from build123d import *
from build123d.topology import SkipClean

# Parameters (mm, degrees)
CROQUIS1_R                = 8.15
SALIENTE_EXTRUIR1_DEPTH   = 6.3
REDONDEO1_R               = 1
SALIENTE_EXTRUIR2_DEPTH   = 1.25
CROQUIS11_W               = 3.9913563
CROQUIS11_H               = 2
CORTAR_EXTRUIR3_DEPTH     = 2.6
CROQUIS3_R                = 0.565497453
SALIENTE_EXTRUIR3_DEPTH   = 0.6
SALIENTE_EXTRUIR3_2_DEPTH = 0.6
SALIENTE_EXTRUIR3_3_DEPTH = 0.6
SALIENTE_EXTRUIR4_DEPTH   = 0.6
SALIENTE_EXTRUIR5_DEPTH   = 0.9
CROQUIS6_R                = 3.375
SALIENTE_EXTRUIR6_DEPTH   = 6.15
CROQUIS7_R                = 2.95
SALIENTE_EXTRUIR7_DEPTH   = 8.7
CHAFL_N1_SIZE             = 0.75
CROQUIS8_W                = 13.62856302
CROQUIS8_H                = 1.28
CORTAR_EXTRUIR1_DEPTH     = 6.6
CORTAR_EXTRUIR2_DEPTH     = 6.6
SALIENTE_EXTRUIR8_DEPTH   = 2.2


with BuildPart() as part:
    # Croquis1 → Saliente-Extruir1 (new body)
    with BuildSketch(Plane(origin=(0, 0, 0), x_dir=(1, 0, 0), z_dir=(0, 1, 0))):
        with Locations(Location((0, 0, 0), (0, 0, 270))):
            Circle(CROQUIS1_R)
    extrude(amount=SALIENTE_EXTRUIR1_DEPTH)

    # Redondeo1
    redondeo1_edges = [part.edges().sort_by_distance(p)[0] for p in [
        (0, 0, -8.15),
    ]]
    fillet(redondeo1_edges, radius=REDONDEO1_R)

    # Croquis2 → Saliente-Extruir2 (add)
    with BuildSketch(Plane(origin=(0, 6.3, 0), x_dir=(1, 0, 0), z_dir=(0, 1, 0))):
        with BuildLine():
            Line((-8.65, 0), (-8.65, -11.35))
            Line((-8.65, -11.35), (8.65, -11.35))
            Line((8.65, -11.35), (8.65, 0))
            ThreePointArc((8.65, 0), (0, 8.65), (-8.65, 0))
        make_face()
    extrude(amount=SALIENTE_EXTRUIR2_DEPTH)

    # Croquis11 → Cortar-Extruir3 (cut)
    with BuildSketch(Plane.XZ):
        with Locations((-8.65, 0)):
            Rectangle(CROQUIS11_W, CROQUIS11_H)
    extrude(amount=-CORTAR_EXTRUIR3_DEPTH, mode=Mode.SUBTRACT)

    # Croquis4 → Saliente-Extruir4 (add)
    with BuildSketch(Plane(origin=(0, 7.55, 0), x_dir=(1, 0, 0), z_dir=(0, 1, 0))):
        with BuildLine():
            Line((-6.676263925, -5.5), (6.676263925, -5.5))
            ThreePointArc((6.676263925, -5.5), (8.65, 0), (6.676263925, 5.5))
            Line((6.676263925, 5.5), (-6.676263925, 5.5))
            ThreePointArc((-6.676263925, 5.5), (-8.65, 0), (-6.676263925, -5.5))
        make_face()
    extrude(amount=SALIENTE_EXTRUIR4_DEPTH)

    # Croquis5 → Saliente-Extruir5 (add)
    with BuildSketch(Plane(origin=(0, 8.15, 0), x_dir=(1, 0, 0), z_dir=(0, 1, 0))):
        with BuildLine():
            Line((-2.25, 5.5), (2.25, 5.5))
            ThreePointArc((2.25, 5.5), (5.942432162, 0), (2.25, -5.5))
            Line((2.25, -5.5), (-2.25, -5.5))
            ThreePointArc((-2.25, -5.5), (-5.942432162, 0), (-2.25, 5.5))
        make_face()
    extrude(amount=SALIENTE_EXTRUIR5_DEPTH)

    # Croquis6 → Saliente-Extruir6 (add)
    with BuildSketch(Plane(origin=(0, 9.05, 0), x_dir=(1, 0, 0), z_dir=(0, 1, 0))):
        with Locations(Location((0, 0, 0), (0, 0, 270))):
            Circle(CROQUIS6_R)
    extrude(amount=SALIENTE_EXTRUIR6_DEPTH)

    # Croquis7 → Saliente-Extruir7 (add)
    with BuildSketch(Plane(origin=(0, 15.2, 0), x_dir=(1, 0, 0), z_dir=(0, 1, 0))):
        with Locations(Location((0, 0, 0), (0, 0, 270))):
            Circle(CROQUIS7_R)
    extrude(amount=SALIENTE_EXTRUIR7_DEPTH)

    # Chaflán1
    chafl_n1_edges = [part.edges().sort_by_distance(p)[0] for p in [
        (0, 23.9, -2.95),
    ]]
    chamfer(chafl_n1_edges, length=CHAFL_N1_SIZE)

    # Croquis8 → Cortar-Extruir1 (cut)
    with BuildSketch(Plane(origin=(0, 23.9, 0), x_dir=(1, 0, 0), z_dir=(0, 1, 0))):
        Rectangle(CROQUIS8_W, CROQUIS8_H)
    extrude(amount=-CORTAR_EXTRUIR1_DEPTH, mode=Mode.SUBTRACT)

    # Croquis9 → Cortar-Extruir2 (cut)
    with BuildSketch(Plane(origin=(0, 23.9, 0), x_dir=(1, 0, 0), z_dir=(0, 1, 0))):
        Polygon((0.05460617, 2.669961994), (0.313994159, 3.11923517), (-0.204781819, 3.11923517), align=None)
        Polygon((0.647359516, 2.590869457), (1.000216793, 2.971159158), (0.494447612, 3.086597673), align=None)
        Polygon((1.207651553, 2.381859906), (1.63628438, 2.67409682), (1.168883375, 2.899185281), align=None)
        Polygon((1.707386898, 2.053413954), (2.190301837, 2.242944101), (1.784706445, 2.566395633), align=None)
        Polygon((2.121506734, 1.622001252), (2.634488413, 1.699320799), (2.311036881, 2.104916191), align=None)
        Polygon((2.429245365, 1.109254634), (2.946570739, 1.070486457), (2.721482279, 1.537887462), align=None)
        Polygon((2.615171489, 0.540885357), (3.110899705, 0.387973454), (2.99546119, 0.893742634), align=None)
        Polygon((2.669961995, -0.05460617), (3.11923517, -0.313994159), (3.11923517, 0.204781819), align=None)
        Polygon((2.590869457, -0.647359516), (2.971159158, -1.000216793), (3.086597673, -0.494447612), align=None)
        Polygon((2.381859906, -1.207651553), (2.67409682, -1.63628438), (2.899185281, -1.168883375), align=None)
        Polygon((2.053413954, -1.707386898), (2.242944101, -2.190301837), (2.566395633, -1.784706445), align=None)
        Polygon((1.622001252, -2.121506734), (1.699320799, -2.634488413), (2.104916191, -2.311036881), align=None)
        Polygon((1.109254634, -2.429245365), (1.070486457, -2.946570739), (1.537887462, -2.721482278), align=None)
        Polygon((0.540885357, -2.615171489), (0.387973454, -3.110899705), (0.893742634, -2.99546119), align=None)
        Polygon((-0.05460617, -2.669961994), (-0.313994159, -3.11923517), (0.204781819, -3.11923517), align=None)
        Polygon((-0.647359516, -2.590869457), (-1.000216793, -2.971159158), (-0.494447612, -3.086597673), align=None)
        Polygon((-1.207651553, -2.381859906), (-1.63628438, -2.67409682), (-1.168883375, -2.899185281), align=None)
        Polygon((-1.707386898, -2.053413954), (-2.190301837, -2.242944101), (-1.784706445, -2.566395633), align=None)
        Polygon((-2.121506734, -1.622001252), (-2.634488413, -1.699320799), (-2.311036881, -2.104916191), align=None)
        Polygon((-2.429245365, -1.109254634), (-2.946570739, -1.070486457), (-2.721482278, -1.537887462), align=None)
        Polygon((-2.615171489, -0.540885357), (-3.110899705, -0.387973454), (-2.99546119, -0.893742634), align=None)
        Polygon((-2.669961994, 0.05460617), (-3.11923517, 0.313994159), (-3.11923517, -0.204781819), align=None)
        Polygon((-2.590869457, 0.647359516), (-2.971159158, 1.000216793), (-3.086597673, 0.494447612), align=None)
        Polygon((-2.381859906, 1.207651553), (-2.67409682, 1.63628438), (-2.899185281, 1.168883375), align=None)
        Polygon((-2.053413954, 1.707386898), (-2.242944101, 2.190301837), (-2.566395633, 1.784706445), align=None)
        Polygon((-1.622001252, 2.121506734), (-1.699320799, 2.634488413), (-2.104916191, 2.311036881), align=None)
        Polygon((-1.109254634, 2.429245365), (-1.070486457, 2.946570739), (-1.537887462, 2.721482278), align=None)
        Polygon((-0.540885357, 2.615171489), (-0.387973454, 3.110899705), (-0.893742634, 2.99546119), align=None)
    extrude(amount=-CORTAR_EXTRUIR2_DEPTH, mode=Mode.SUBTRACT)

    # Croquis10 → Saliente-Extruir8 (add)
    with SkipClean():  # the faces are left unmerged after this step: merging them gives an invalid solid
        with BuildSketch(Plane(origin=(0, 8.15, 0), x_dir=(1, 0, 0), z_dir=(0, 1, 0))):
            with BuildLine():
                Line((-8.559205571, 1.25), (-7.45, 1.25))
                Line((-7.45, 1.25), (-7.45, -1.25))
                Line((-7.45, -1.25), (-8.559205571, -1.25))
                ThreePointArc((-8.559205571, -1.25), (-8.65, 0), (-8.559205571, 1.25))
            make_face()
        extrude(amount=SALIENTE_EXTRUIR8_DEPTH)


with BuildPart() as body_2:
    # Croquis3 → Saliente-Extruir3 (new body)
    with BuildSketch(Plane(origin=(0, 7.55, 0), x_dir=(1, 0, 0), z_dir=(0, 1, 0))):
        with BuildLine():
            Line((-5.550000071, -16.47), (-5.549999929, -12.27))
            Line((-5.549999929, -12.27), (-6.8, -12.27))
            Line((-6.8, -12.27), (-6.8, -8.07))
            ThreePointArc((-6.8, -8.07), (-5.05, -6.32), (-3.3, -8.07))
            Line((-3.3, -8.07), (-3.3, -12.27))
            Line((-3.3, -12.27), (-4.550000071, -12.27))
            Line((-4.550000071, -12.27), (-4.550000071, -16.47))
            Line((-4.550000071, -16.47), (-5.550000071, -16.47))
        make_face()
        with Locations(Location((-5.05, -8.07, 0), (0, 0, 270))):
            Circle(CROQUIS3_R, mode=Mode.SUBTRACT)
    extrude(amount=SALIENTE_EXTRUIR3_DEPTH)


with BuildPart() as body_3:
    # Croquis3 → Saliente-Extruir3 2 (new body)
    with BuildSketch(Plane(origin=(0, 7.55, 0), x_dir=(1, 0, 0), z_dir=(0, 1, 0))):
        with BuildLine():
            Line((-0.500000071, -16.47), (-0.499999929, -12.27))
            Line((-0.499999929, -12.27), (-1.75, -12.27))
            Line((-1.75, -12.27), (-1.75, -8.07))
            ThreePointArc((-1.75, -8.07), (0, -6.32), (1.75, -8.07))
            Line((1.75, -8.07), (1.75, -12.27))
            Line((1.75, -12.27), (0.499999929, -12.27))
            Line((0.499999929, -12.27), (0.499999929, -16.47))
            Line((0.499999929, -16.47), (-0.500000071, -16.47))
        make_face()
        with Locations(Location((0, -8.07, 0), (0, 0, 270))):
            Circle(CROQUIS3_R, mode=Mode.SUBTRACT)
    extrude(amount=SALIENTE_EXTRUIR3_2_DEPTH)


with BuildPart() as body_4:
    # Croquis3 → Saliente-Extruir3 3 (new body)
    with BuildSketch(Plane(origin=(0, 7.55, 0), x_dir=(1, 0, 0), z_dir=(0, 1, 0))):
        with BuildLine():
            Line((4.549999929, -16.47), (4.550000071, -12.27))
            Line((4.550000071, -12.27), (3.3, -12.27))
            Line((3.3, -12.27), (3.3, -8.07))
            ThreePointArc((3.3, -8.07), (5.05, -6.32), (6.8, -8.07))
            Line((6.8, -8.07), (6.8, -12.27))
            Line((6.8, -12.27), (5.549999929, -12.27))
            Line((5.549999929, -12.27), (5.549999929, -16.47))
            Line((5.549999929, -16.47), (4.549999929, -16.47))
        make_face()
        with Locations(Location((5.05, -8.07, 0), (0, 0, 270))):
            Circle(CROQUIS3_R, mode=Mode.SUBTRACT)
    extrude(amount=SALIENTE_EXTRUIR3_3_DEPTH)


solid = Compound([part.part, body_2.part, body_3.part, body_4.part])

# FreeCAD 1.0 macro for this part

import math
import FreeCAD as App
import Part
import Sketcher

V = App.Vector
Q = App.Units.Quantity


def edges_at(feature, points):
    """Names of the edges that pass closest to the given points."""
    edges = feature.Shape.Edges
    near = lambda p: min(range(len(edges)), key=lambda i: edges[i].distToShape(Part.Vertex(*p))[0])
    return sorted({f"Edge{near(p) + 1}" for p in points})

doc = App.newDocument("Part")
body = doc.addObject("PartDesign::Body", "Body")

# Sketch on XZ plane
sketch1 = body.newObject("Sketcher::SketchObject", "Sketch")
sketch1.AttachmentSupport = (doc.getObject("XZ_Plane"), [""])
sketch1.MapMode = "FlatFace"
sketch1.addGeometry(Part.Circle(V(0, 0, 0), V(0, 0, 1), 8), False)
sketch1.addConstraint(Sketcher.Constraint("Coincident", 0, 3, -1, 1))
sketch1.addConstraint(Sketcher.Constraint("Diameter", 0, 16.3))
pad1 = body.newObject("PartDesign::Pad", "Pad")
pad1.Profile = sketch1
pad1.Length = 6.3
pad1.Reversed = True
doc.recompute()

fillet = body.newObject("PartDesign::Fillet", "Fillet")
fillet.Base = (pad1, edges_at(pad1, [(0, 0, -8.15)]))
fillet.Radius = 1

# Sketch on XZ plane
sketch2 = body.newObject("Sketcher::SketchObject", "Sketch001")
sketch2.AttachmentSupport = (doc.getObject("XZ_Plane"), [""])
sketch2.MapMode = "FlatFace"
sketch2.AttachmentOffset = App.Placement(V(0, 0, -6.3), App.Rotation())
sketch2.addGeometry(Part.LineSegment(V(-9, 0, 0), V(-9, 11, 0)), False)
sketch2.addGeometry(Part.LineSegment(V(-9, 11, 0), V(9, 11, 0)), False)
sketch2.addGeometry(Part.LineSegment(V(9, 11, 0), V(9, 0, 0)), False)
sketch2.addGeometry(Part.ArcOfCircle(Part.Circle(V(0, 0, 0), V(0, 0, 1), 9), math.radians(180), math.radians(360)), False)
sketch2.addConstraint(Sketcher.Constraint("Coincident", 0, 2, 1, 1))
sketch2.addConstraint(Sketcher.Constraint("Coincident", 1, 2, 2, 1))
sketch2.addConstraint(Sketcher.Constraint("Tangent", 2, 2, 3, 2))
sketch2.addConstraint(Sketcher.Constraint("Tangent", 3, 1, 0, 1))
sketch2.addConstraint(Sketcher.Constraint("Vertical", 0))
sketch2.addConstraint(Sketcher.Constraint("Horizontal", 1))
sketch2.addConstraint(Sketcher.Constraint("Vertical", 2))
sketch2.addConstraint(Sketcher.Constraint("Coincident", 3, 3, -1, 1))
sketch2.addConstraint(Sketcher.Constraint("Radius", 3, 8.65))
sketch2.addConstraint(Sketcher.Constraint("DistanceY", 0, 1, 0, 2, 11.35))
pad2 = body.newObject("PartDesign::Pad", "Pad001")
pad2.Profile = sketch2
pad2.Length = 1.25
pad2.Reversed = True

# Sketch on XZ plane
sketch3 = body.newObject("Sketcher::SketchObject", "Sketch002")
sketch3.AttachmentSupport = (doc.getObject("XZ_Plane"), [""])
sketch3.MapMode = "FlatFace"
sketch3.addGeometry(Part.LineSegment(V(-10.6, 1, 0), V(-10.6, -1, 0)), False)
sketch3.addGeometry(Part.LineSegment(V(-10.6, -1, 0), V(-6.7, -1, 0)), False)
sketch3.addGeometry(Part.LineSegment(V(-6.7, -1, 0), V(-6.7, 1, 0)), False)
sketch3.addGeometry(Part.LineSegment(V(-6.7, 1, 0), V(-10.6, 1, 0)), False)
sketch3.addConstraint(Sketcher.Constraint("Coincident", 0, 2, 1, 1))
sketch3.addConstraint(Sketcher.Constraint("Coincident", 1, 2, 2, 1))
sketch3.addConstraint(Sketcher.Constraint("Coincident", 2, 2, 3, 1))
sketch3.addConstraint(Sketcher.Constraint("Coincident", 3, 2, 0, 1))
sketch3.addConstraint(Sketcher.Constraint("Vertical", 0))
sketch3.addConstraint(Sketcher.Constraint("Horizontal", 1))
sketch3.addConstraint(Sketcher.Constraint("Vertical", 2))
sketch3.addConstraint(Sketcher.Constraint("Horizontal", 3))
sketch3.addConstraint(Sketcher.Constraint("DistanceY", 0, 2, 0, 1, 2.0))
sketch3.addConstraint(Sketcher.Constraint("DistanceY", 0, 2, -1, 1, 1.0))
sketch3.addConstraint(Sketcher.Constraint("DistanceX", 1, 1, 1, 2, 3.991356))
sketch3.addConstraint(Sketcher.Constraint("DistanceX", 0, 2, -1, 1, 10.645678))
pocket1 = body.newObject("PartDesign::Pocket", "Pocket")
pocket1.Profile = sketch3
pocket1.Length = 2.6

# Sketch on XZ plane
sketch4 = body.newObject("Sketcher::SketchObject", "Sketch003")
sketch4.AttachmentSupport = (doc.getObject("XZ_Plane"), [""])
sketch4.MapMode = "FlatFace"
sketch4.AttachmentOffset = App.Placement(V(0, 0, -7.55), App.Rotation())
sketch4.addGeometry(Part.LineSegment(V(-7, 6, 0), V(7, 6, 0)), False)
sketch4.addGeometry(Part.ArcOfCircle(Part.Circle(V(0, 0, 0), V(0, 0, 1), 9), math.radians(-39), math.radians(39)), False)
sketch4.addGeometry(Part.LineSegment(V(7, -6, 0), V(-7, -6, 0)), False)
sketch4.addGeometry(Part.ArcOfCircle(Part.Circle(V(0, 0, 0), V(0, 0, 1), 9), math.radians(141), math.radians(219)), False)
sketch4.addConstraint(Sketcher.Constraint("Coincident", 0, 2, 1, 2))
sketch4.addConstraint(Sketcher.Constraint("Coincident", 1, 1, 2, 1))
sketch4.addConstraint(Sketcher.Constraint("Coincident", 2, 2, 3, 2))
sketch4.addConstraint(Sketcher.Constraint("Coincident", 3, 1, 0, 1))
sketch4.addConstraint(Sketcher.Constraint("Horizontal", 0))
sketch4.addConstraint(Sketcher.Constraint("Horizontal", 2))
sketch4.addConstraint(Sketcher.Constraint("Coincident", 1, 3, -1, 1))
sketch4.addConstraint(Sketcher.Constraint("Coincident", 3, 3, -1, 1))
sketch4.addConstraint(Sketcher.Constraint("Equal", 1, 3))
sketch4.addConstraint(Sketcher.Constraint("Vertical", 0, 2, 1, 1))
sketch4.addConstraint(Sketcher.Constraint("Radius", 1, 8.65))
sketch4.addConstraint(Sketcher.Constraint("DistanceY", 1, 1, 0, 2, 11.0))
pad3 = body.newObject("PartDesign::Pad", "Pad002")
pad3.Profile = sketch4
pad3.Length = 0.6
pad3.Reversed = True

# Sketch on XZ plane
sketch5 = body.newObject("Sketcher::SketchObject", "Sketch004")
sketch5.AttachmentSupport = (doc.getObject("XZ_Plane"), [""])
sketch5.MapMode = "FlatFace"
sketch5.AttachmentOffset = App.Placement(V(0, 0, -8.15), App.Rotation())
sketch5.addGeometry(Part.LineSegment(V(2.2, -5.5, 0), V(-2.2, -5.5, 0)), False)
sketch5.addGeometry(Part.ArcOfCircle(Part.Circle(V(0, 0, 0), V(0, 0, 1), 5.9), math.radians(112), math.radians(248)), False)
sketch5.addGeometry(Part.LineSegment(V(-2.2, 5.5, 0), V(2.2, 5.5, 0)), False)
sketch5.addGeometry(Part.ArcOfCircle(Part.Circle(V(0, 0, 0), V(0, 0, 1), 5.9), math.radians(-68), math.radians(68)), False)
sketch5.addConstraint(Sketcher.Constraint("Coincident", 0, 2, 1, 2))
sketch5.addConstraint(Sketcher.Constraint("Coincident", 1, 1, 2, 1))
sketch5.addConstraint(Sketcher.Constraint("Coincident", 2, 2, 3, 2))
sketch5.addConstraint(Sketcher.Constraint("Coincident", 3, 1, 0, 1))
sketch5.addConstraint(Sketcher.Constraint("Horizontal", 0))
sketch5.addConstraint(Sketcher.Constraint("Horizontal", 2))
sketch5.addConstraint(Sketcher.Constraint("Coincident", 1, 3, -1, 1))
sketch5.addConstraint(Sketcher.Constraint("Coincident", 3, 3, -1, 1))
sketch5.addConstraint(Sketcher.Constraint("Equal", 1, 3))
sketch5.addConstraint(Sketcher.Constraint("Vertical", 0, 2, 1, 1))
sketch5.addConstraint(Sketcher.Constraint("DistanceX", 0, 2, 0, 1, 4.5))
sketch5.addConstraint(Sketcher.Constraint("DistanceY", 0, 2, 1, 1, 11.0))
pad4 = body.newObject("PartDesign::Pad", "Pad003")
pad4.Profile = sketch5
pad4.Length = 0.9
pad4.Reversed = True

# Sketch on XZ plane
sketch6 = body.newObject("Sketcher::SketchObject", "Sketch005")
sketch6.AttachmentSupport = (doc.getObject("XZ_Plane"), [""])
sketch6.MapMode = "FlatFace"
sketch6.AttachmentOffset = App.Placement(V(0, 0, -9.05), App.Rotation())
sketch6.addGeometry(Part.Circle(V(0, 0, 0), V(0, 0, 1), 3.4), False)
sketch6.addConstraint(Sketcher.Constraint("Coincident", 0, 3, -1, 1))
sketch6.addConstraint(Sketcher.Constraint("Diameter", 0, 6.75))
pad5 = body.newObject("PartDesign::Pad", "Pad004")
pad5.Profile = sketch6
pad5.Length = 6.15
pad5.Reversed = True

# Sketch on XZ plane
sketch7 = body.newObject("Sketcher::SketchObject", "Sketch006")
sketch7.AttachmentSupport = (doc.getObject("XZ_Plane"), [""])
sketch7.MapMode = "FlatFace"
sketch7.AttachmentOffset = App.Placement(V(0, 0, -15.2), App.Rotation())
sketch7.addGeometry(Part.Circle(V(0, 0, 0), V(0, 0, 1), 3), False)
sketch7.addConstraint(Sketcher.Constraint("Coincident", 0, 3, -1, 1))
sketch7.addConstraint(Sketcher.Constraint("Diameter", 0, 5.9))
pad6 = body.newObject("PartDesign::Pad", "Pad005")
pad6.Profile = sketch7
pad6.Length = 8.7
pad6.Reversed = True
doc.recompute()

chamfer = body.newObject("PartDesign::Chamfer", "Chamfer")
chamfer.Base = (pad6, edges_at(pad6, [(0, 23.9, -2.95)]))
chamfer.Size = 0.75

# Sketch on XZ plane
sketch8 = body.newObject("Sketcher::SketchObject", "Sketch007")
sketch8.AttachmentSupport = (doc.getObject("XZ_Plane"), [""])
sketch8.MapMode = "FlatFace"
sketch8.AttachmentOffset = App.Placement(V(0, 0, -23.9), App.Rotation())
sketch8.addGeometry(Part.LineSegment(V(-6.8, -0.6, 0), V(-6.8, 0.6, 0)), False)
sketch8.addGeometry(Part.LineSegment(V(-6.8, 0.6, 0), V(6.8, 0.6, 0)), False)
sketch8.addGeometry(Part.LineSegment(V(6.8, 0.6, 0), V(6.8, -0.6, 0)), False)
sketch8.addGeometry(Part.LineSegment(V(6.8, -0.6, 0), V(-6.8, -0.6, 0)), False)
sketch8.addConstraint(Sketcher.Constraint("Coincident", 0, 2, 1, 1))
sketch8.addConstraint(Sketcher.Constraint("Coincident", 1, 2, 2, 1))
sketch8.addConstraint(Sketcher.Constraint("Coincident", 2, 2, 3, 1))
sketch8.addConstraint(Sketcher.Constraint("Coincident", 3, 2, 0, 1))
sketch8.addConstraint(Sketcher.Constraint("Vertical", 0))
sketch8.addConstraint(Sketcher.Constraint("Horizontal", 1))
sketch8.addConstraint(Sketcher.Constraint("Vertical", 2))
sketch8.addConstraint(Sketcher.Constraint("Horizontal", 3))
sketch8.addConstraint(Sketcher.Constraint("Symmetric", 0, 2, 2, 2, -1, 1))
sketch8.addConstraint(Sketcher.Constraint("DistanceY", 0, 1, 0, 2, 1.28))
sketch8.addConstraint(Sketcher.Constraint("DistanceX", 1, 1, 1, 2, 13.628563))
pocket2 = body.newObject("PartDesign::Pocket", "Pocket001")
pocket2.Profile = sketch8
pocket2.Length = 6.6
pocket2.Reversed = True

# Sketch on XZ plane
sketch9 = body.newObject("Sketcher::SketchObject", "Sketch008")
sketch9.AttachmentSupport = (doc.getObject("XZ_Plane"), [""])
sketch9.MapMode = "FlatFace"
sketch9.AttachmentOffset = App.Placement(V(0, 0, -23.9), App.Rotation())
sketch9.addGeometry(Part.LineSegment(V(0.1, -2.7, 0), V(0.3, -3.1, 0)), False)
sketch9.addGeometry(Part.LineSegment(V(0.3, -3.1, 0), V(-0.2, -3.1, 0)), False)
sketch9.addGeometry(Part.LineSegment(V(-0.2, -3.1, 0), V(0.1, -2.7, 0)), False)
sketch9.addGeometry(Part.LineSegment(V(0.6, -2.6, 0), V(1, -3, 0)), False)
sketch9.addGeometry(Part.LineSegment(V(1, -3, 0), V(0.5, -3.1, 0)), False)
sketch9.addGeometry(Part.LineSegment(V(0.5, -3.1, 0), V(0.6, -2.6, 0)), False)
sketch9.addGeometry(Part.LineSegment(V(1.2, -2.4, 0), V(1.6, -2.7, 0)), False)
sketch9.addGeometry(Part.LineSegment(V(1.6, -2.7, 0), V(1.2, -2.9, 0)), False)
sketch9.addGeometry(Part.LineSegment(V(1.2, -2.9, 0), V(1.2, -2.4, 0)), False)
sketch9.addGeometry(Part.LineSegment(V(1.7, -2.1, 0), V(2.2, -2.2, 0)), False)
sketch9.addGeometry(Part.LineSegment(V(2.2, -2.2, 0), V(1.8, -2.6, 0)), False)
sketch9.addGeometry(Part.LineSegment(V(1.8, -2.6, 0), V(1.7, -2.1, 0)), False)
sketch9.addGeometry(Part.LineSegment(V(2.1, -1.6, 0), V(2.6, -1.7, 0)), False)
sketch9.addGeometry(Part.LineSegment(V(2.6, -1.7, 0), V(2.3, -2.1, 0)), False)
sketch9.addGeometry(Part.LineSegment(V(2.3, -2.1, 0), V(2.1, -1.6, 0)), False)
sketch9.addGeometry(Part.LineSegment(V(2.4, -1.1, 0), V(2.9, -1.1, 0)), False)
sketch9.addGeometry(Part.LineSegment(V(2.9, -1.1, 0), V(2.7, -1.5, 0)), False)
sketch9.addGeometry(Part.LineSegment(V(2.7, -1.5, 0), V(2.4, -1.1, 0)), False)
sketch9.addGeometry(Part.LineSegment(V(2.6, -0.5, 0), V(3.1, -0.4, 0)), False)
sketch9.addGeometry(Part.LineSegment(V(3.1, -0.4, 0), V(3, -0.9, 0)), False)
sketch9.addGeometry(Part.LineSegment(V(3, -0.9, 0), V(2.6, -0.5, 0)), False)
sketch9.addGeometry(Part.LineSegment(V(2.7, 0.1, 0), V(3.1, 0.3, 0)), False)
sketch9.addGeometry(Part.LineSegment(V(3.1, 0.3, 0), V(3.1, -0.2, 0)), False)
sketch9.addGeometry(Part.LineSegment(V(3.1, -0.2, 0), V(2.7, 0.1, 0)), False)
sketch9.addGeometry(Part.LineSegment(V(2.6, 0.6, 0), V(3, 1, 0)), False)
sketch9.addGeometry(Part.LineSegment(V(3, 1, 0), V(3.1, 0.5, 0)), False)
sketch9.addGeometry(Part.LineSegment(V(3.1, 0.5, 0), V(2.6, 0.6, 0)), False)
sketch9.addGeometry(Part.LineSegment(V(2.4, 1.2, 0), V(2.7, 1.6, 0)), False)
sketch9.addGeometry(Part.LineSegment(V(2.7, 1.6, 0), V(2.9, 1.2, 0)), False)
sketch9.addGeometry(Part.LineSegment(V(2.9, 1.2, 0), V(2.4, 1.2, 0)), False)
sketch9.addGeometry(Part.LineSegment(V(2.1, 1.7, 0), V(2.2, 2.2, 0)), False)
sketch9.addGeometry(Part.LineSegment(V(2.2, 2.2, 0), V(2.6, 1.8, 0)), False)
sketch9.addGeometry(Part.LineSegment(V(2.6, 1.8, 0), V(2.1, 1.7, 0)), False)
sketch9.addGeometry(Part.LineSegment(V(1.6, 2.1, 0), V(1.7, 2.6, 0)), False)
sketch9.addGeometry(Part.LineSegment(V(1.7, 2.6, 0), V(2.1, 2.3, 0)), False)
sketch9.addGeometry(Part.LineSegment(V(2.1, 2.3, 0), V(1.6, 2.1, 0)), False)
sketch9.addGeometry(Part.LineSegment(V(1.1, 2.4, 0), V(1.1, 2.9, 0)), False)
sketch9.addGeometry(Part.LineSegment(V(1.1, 2.9, 0), V(1.5, 2.7, 0)), False)
sketch9.addGeometry(Part.LineSegment(V(1.5, 2.7, 0), V(1.1, 2.4, 0)), False)
sketch9.addGeometry(Part.LineSegment(V(0.5, 2.6, 0), V(0.4, 3.1, 0)), False)
sketch9.addGeometry(Part.LineSegment(V(0.4, 3.1, 0), V(0.9, 3, 0)), False)
sketch9.addGeometry(Part.LineSegment(V(0.9, 3, 0), V(0.5, 2.6, 0)), False)
sketch9.addGeometry(Part.LineSegment(V(-0.1, 2.7, 0), V(-0.3, 3.1, 0)), False)
sketch9.addGeometry(Part.LineSegment(V(-0.3, 3.1, 0), V(0.2, 3.1, 0)), False)
sketch9.addGeometry(Part.LineSegment(V(0.2, 3.1, 0), V(-0.1, 2.7, 0)), False)
sketch9.addGeometry(Part.LineSegment(V(-0.6, 2.6, 0), V(-1, 3, 0)), False)
sketch9.addGeometry(Part.LineSegment(V(-1, 3, 0), V(-0.5, 3.1, 0)), False)
sketch9.addGeometry(Part.LineSegment(V(-0.5, 3.1, 0), V(-0.6, 2.6, 0)), False)
sketch9.addGeometry(Part.LineSegment(V(-1.2, 2.4, 0), V(-1.6, 2.7, 0)), False)
sketch9.addGeometry(Part.LineSegment(V(-1.6, 2.7, 0), V(-1.2, 2.9, 0)), False)
sketch9.addGeometry(Part.LineSegment(V(-1.2, 2.9, 0), V(-1.2, 2.4, 0)), False)
sketch9.addGeometry(Part.LineSegment(V(-1.7, 2.1, 0), V(-2.2, 2.2, 0)), False)
sketch9.addGeometry(Part.LineSegment(V(-2.2, 2.2, 0), V(-1.8, 2.6, 0)), False)
sketch9.addGeometry(Part.LineSegment(V(-1.8, 2.6, 0), V(-1.7, 2.1, 0)), False)
sketch9.addGeometry(Part.LineSegment(V(-2.1, 1.6, 0), V(-2.6, 1.7, 0)), False)
sketch9.addGeometry(Part.LineSegment(V(-2.6, 1.7, 0), V(-2.3, 2.1, 0)), False)
sketch9.addGeometry(Part.LineSegment(V(-2.3, 2.1, 0), V(-2.1, 1.6, 0)), False)
sketch9.addGeometry(Part.LineSegment(V(-2.4, 1.1, 0), V(-2.9, 1.1, 0)), False)
sketch9.addGeometry(Part.LineSegment(V(-2.9, 1.1, 0), V(-2.7, 1.5, 0)), False)
sketch9.addGeometry(Part.LineSegment(V(-2.7, 1.5, 0), V(-2.4, 1.1, 0)), False)
sketch9.addGeometry(Part.LineSegment(V(-2.6, 0.5, 0), V(-3.1, 0.4, 0)), False)
sketch9.addGeometry(Part.LineSegment(V(-3.1, 0.4, 0), V(-3, 0.9, 0)), False)
sketch9.addGeometry(Part.LineSegment(V(-3, 0.9, 0), V(-2.6, 0.5, 0)), False)
sketch9.addGeometry(Part.LineSegment(V(-2.7, -0.1, 0), V(-3.1, -0.3, 0)), False)
sketch9.addGeometry(Part.LineSegment(V(-3.1, -0.3, 0), V(-3.1, 0.2, 0)), False)
sketch9.addGeometry(Part.LineSegment(V(-3.1, 0.2, 0), V(-2.7, -0.1, 0)), False)
sketch9.addGeometry(Part.LineSegment(V(-2.6, -0.6, 0), V(-3, -1, 0)), False)
sketch9.addGeometry(Part.LineSegment(V(-3, -1, 0), V(-3.1, -0.5, 0)), False)
sketch9.addGeometry(Part.LineSegment(V(-3.1, -0.5, 0), V(-2.6, -0.6, 0)), False)
sketch9.addGeometry(Part.LineSegment(V(-2.4, -1.2, 0), V(-2.7, -1.6, 0)), False)
sketch9.addGeometry(Part.LineSegment(V(-2.7, -1.6, 0), V(-2.9, -1.2, 0)), False)
sketch9.addGeometry(Part.LineSegment(V(-2.9, -1.2, 0), V(-2.4, -1.2, 0)), False)
sketch9.addGeometry(Part.LineSegment(V(-2.1, -1.7, 0), V(-2.2, -2.2, 0)), False)
sketch9.addGeometry(Part.LineSegment(V(-2.2, -2.2, 0), V(-2.6, -1.8, 0)), False)
sketch9.addGeometry(Part.LineSegment(V(-2.6, -1.8, 0), V(-2.1, -1.7, 0)), False)
sketch9.addGeometry(Part.LineSegment(V(-1.6, -2.1, 0), V(-1.7, -2.6, 0)), False)
sketch9.addGeometry(Part.LineSegment(V(-1.7, -2.6, 0), V(-2.1, -2.3, 0)), False)
sketch9.addGeometry(Part.LineSegment(V(-2.1, -2.3, 0), V(-1.6, -2.1, 0)), False)
sketch9.addGeometry(Part.LineSegment(V(-1.1, -2.4, 0), V(-1.1, -2.9, 0)), False)
sketch9.addGeometry(Part.LineSegment(V(-1.1, -2.9, 0), V(-1.5, -2.7, 0)), False)
sketch9.addGeometry(Part.LineSegment(V(-1.5, -2.7, 0), V(-1.1, -2.4, 0)), False)
sketch9.addGeometry(Part.LineSegment(V(-0.5, -2.6, 0), V(-0.4, -3.1, 0)), False)
sketch9.addGeometry(Part.LineSegment(V(-0.4, -3.1, 0), V(-0.9, -3, 0)), False)
sketch9.addGeometry(Part.LineSegment(V(-0.9, -3, 0), V(-0.5, -2.6, 0)), False)
sketch9.addConstraint(Sketcher.Constraint("Coincident", 0, 2, 1, 1))
sketch9.addConstraint(Sketcher.Constraint("Coincident", 1, 2, 2, 1))
sketch9.addConstraint(Sketcher.Constraint("Coincident", 2, 2, 0, 1))
sketch9.addConstraint(Sketcher.Constraint("Coincident", 3, 2, 4, 1))
sketch9.addConstraint(Sketcher.Constraint("Coincident", 4, 2, 5, 1))
sketch9.addConstraint(Sketcher.Constraint("Coincident", 5, 2, 3, 1))
sketch9.addConstraint(Sketcher.Constraint("Coincident", 6, 2, 7, 1))
sketch9.addConstraint(Sketcher.Constraint("Coincident", 7, 2, 8, 1))
sketch9.addConstraint(Sketcher.Constraint("Coincident", 8, 2, 6, 1))
sketch9.addConstraint(Sketcher.Constraint("Coincident", 9, 2, 10, 1))
sketch9.addConstraint(Sketcher.Constraint("Coincident", 10, 2, 11, 1))
sketch9.addConstraint(Sketcher.Constraint("Coincident", 11, 2, 9, 1))
sketch9.addConstraint(Sketcher.Constraint("Coincident", 12, 2, 13, 1))
sketch9.addConstraint(Sketcher.Constraint("Coincident", 13, 2, 14, 1))
sketch9.addConstraint(Sketcher.Constraint("Coincident", 14, 2, 12, 1))
sketch9.addConstraint(Sketcher.Constraint("Coincident", 15, 2, 16, 1))
sketch9.addConstraint(Sketcher.Constraint("Coincident", 16, 2, 17, 1))
sketch9.addConstraint(Sketcher.Constraint("Coincident", 17, 2, 15, 1))
sketch9.addConstraint(Sketcher.Constraint("Coincident", 18, 2, 19, 1))
sketch9.addConstraint(Sketcher.Constraint("Coincident", 19, 2, 20, 1))
sketch9.addConstraint(Sketcher.Constraint("Coincident", 20, 2, 18, 1))
sketch9.addConstraint(Sketcher.Constraint("Coincident", 21, 2, 22, 1))
sketch9.addConstraint(Sketcher.Constraint("Coincident", 22, 2, 23, 1))
sketch9.addConstraint(Sketcher.Constraint("Coincident", 23, 2, 21, 1))
sketch9.addConstraint(Sketcher.Constraint("Coincident", 24, 2, 25, 1))
sketch9.addConstraint(Sketcher.Constraint("Coincident", 25, 2, 26, 1))
sketch9.addConstraint(Sketcher.Constraint("Coincident", 26, 2, 24, 1))
sketch9.addConstraint(Sketcher.Constraint("Coincident", 27, 2, 28, 1))
sketch9.addConstraint(Sketcher.Constraint("Coincident", 28, 2, 29, 1))
sketch9.addConstraint(Sketcher.Constraint("Coincident", 29, 2, 27, 1))
sketch9.addConstraint(Sketcher.Constraint("Coincident", 30, 2, 31, 1))
sketch9.addConstraint(Sketcher.Constraint("Coincident", 31, 2, 32, 1))
sketch9.addConstraint(Sketcher.Constraint("Coincident", 32, 2, 30, 1))
sketch9.addConstraint(Sketcher.Constraint("Coincident", 33, 2, 34, 1))
sketch9.addConstraint(Sketcher.Constraint("Coincident", 34, 2, 35, 1))
sketch9.addConstraint(Sketcher.Constraint("Coincident", 35, 2, 33, 1))
sketch9.addConstraint(Sketcher.Constraint("Coincident", 36, 2, 37, 1))
sketch9.addConstraint(Sketcher.Constraint("Coincident", 37, 2, 38, 1))
sketch9.addConstraint(Sketcher.Constraint("Coincident", 38, 2, 36, 1))
sketch9.addConstraint(Sketcher.Constraint("Coincident", 39, 2, 40, 1))
sketch9.addConstraint(Sketcher.Constraint("Coincident", 40, 2, 41, 1))
sketch9.addConstraint(Sketcher.Constraint("Coincident", 41, 2, 39, 1))
sketch9.addConstraint(Sketcher.Constraint("Coincident", 42, 2, 43, 1))
sketch9.addConstraint(Sketcher.Constraint("Coincident", 43, 2, 44, 1))
sketch9.addConstraint(Sketcher.Constraint("Coincident", 44, 2, 42, 1))
sketch9.addConstraint(Sketcher.Constraint("Coincident", 45, 2, 46, 1))
sketch9.addConstraint(Sketcher.Constraint("Coincident", 46, 2, 47, 1))
sketch9.addConstraint(Sketcher.Constraint("Coincident", 47, 2, 45, 1))
sketch9.addConstraint(Sketcher.Constraint("Coincident", 48, 2, 49, 1))
sketch9.addConstraint(Sketcher.Constraint("Coincident", 49, 2, 50, 1))
sketch9.addConstraint(Sketcher.Constraint("Coincident", 50, 2, 48, 1))
sketch9.addConstraint(Sketcher.Constraint("Coincident", 51, 2, 52, 1))
sketch9.addConstraint(Sketcher.Constraint("Coincident", 52, 2, 53, 1))
sketch9.addConstraint(Sketcher.Constraint("Coincident", 53, 2, 51, 1))
sketch9.addConstraint(Sketcher.Constraint("Coincident", 54, 2, 55, 1))
sketch9.addConstraint(Sketcher.Constraint("Coincident", 55, 2, 56, 1))
sketch9.addConstraint(Sketcher.Constraint("Coincident", 56, 2, 54, 1))
sketch9.addConstraint(Sketcher.Constraint("Coincident", 57, 2, 58, 1))
sketch9.addConstraint(Sketcher.Constraint("Coincident", 58, 2, 59, 1))
sketch9.addConstraint(Sketcher.Constraint("Coincident", 59, 2, 57, 1))
sketch9.addConstraint(Sketcher.Constraint("Coincident", 60, 2, 61, 1))
sketch9.addConstraint(Sketcher.Constraint("Coincident", 61, 2, 62, 1))
sketch9.addConstraint(Sketcher.Constraint("Coincident", 62, 2, 60, 1))
sketch9.addConstraint(Sketcher.Constraint("Coincident", 63, 2, 64, 1))
sketch9.addConstraint(Sketcher.Constraint("Coincident", 64, 2, 65, 1))
sketch9.addConstraint(Sketcher.Constraint("Coincident", 65, 2, 63, 1))
sketch9.addConstraint(Sketcher.Constraint("Coincident", 66, 2, 67, 1))
sketch9.addConstraint(Sketcher.Constraint("Coincident", 67, 2, 68, 1))
sketch9.addConstraint(Sketcher.Constraint("Coincident", 68, 2, 66, 1))
sketch9.addConstraint(Sketcher.Constraint("Coincident", 69, 2, 70, 1))
sketch9.addConstraint(Sketcher.Constraint("Coincident", 70, 2, 71, 1))
sketch9.addConstraint(Sketcher.Constraint("Coincident", 71, 2, 69, 1))
sketch9.addConstraint(Sketcher.Constraint("Coincident", 72, 2, 73, 1))
sketch9.addConstraint(Sketcher.Constraint("Coincident", 73, 2, 74, 1))
sketch9.addConstraint(Sketcher.Constraint("Coincident", 74, 2, 72, 1))
sketch9.addConstraint(Sketcher.Constraint("Coincident", 75, 2, 76, 1))
sketch9.addConstraint(Sketcher.Constraint("Coincident", 76, 2, 77, 1))
sketch9.addConstraint(Sketcher.Constraint("Coincident", 77, 2, 75, 1))
sketch9.addConstraint(Sketcher.Constraint("Coincident", 78, 2, 79, 1))
sketch9.addConstraint(Sketcher.Constraint("Coincident", 79, 2, 80, 1))
sketch9.addConstraint(Sketcher.Constraint("Coincident", 80, 2, 78, 1))
sketch9.addConstraint(Sketcher.Constraint("Coincident", 81, 2, 82, 1))
sketch9.addConstraint(Sketcher.Constraint("Coincident", 82, 2, 83, 1))
sketch9.addConstraint(Sketcher.Constraint("Coincident", 83, 2, 81, 1))
sketch9.addConstraint(Sketcher.Constraint("Horizontal", 1))
sketch9.addConstraint(Sketcher.Constraint("Vertical", 22))
sketch9.addConstraint(Sketcher.Constraint("Horizontal", 43))
sketch9.addConstraint(Sketcher.Constraint("Vertical", 64))
sketch9.addConstraint(Sketcher.Constraint("Symmetric", 0, 2, 42, 2, -1, 1))
sketch9.addConstraint(Sketcher.Constraint("Symmetric", 2, 2, 44, 2, -1, 1))
sketch9.addConstraint(Sketcher.Constraint("Symmetric", 3, 2, 45, 2, -1, 1))
sketch9.addConstraint(Sketcher.Constraint("Symmetric", 4, 2, 46, 2, -1, 1))
sketch9.addConstraint(Sketcher.Constraint("Symmetric", 5, 2, 47, 2, -1, 1))
sketch9.addConstraint(Sketcher.Constraint("Symmetric", 6, 2, 48, 2, -1, 1))
sketch9.addConstraint(Sketcher.Constraint("Symmetric", 7, 2, 49, 2, -1, 1))
sketch9.addConstraint(Sketcher.Constraint("Symmetric", 8, 2, 50, 2, -1, 1))
sketch9.addConstraint(Sketcher.Constraint("Symmetric", 9, 2, 51, 2, -1, 1))
sketch9.addConstraint(Sketcher.Constraint("Symmetric", 10, 2, 52, 2, -1, 1))
sketch9.addConstraint(Sketcher.Constraint("Symmetric", 11, 2, 53, 2, -1, 1))
sketch9.addConstraint(Sketcher.Constraint("Symmetric", 12, 2, 54, 2, -1, 1))
sketch9.addConstraint(Sketcher.Constraint("Symmetric", 13, 2, 55, 2, -1, 1))
sketch9.addConstraint(Sketcher.Constraint("Symmetric", 14, 2, 56, 2, -1, 1))
sketch9.addConstraint(Sketcher.Constraint("Symmetric", 15, 2, 57, 2, -1, 1))
sketch9.addConstraint(Sketcher.Constraint("Symmetric", 16, 2, 58, 2, -1, 1))
sketch9.addConstraint(Sketcher.Constraint("Symmetric", 17, 2, 59, 2, -1, 1))
sketch9.addConstraint(Sketcher.Constraint("Symmetric", 18, 2, 60, 2, -1, 1))
sketch9.addConstraint(Sketcher.Constraint("Symmetric", 19, 2, 61, 2, -1, 1))
sketch9.addConstraint(Sketcher.Constraint("Symmetric", 20, 2, 62, 2, -1, 1))
sketch9.addConstraint(Sketcher.Constraint("Symmetric", 21, 2, 63, 2, -1, 1))
sketch9.addConstraint(Sketcher.Constraint("Symmetric", 23, 2, 65, 2, -1, 1))
sketch9.addConstraint(Sketcher.Constraint("Symmetric", 24, 2, 66, 2, -1, 1))
sketch9.addConstraint(Sketcher.Constraint("Symmetric", 25, 2, 67, 2, -1, 1))
sketch9.addConstraint(Sketcher.Constraint("Symmetric", 26, 2, 68, 2, -1, 1))
sketch9.addConstraint(Sketcher.Constraint("Symmetric", 27, 2, 69, 2, -1, 1))
sketch9.addConstraint(Sketcher.Constraint("Symmetric", 28, 2, 70, 2, -1, 1))
sketch9.addConstraint(Sketcher.Constraint("Symmetric", 29, 2, 71, 2, -1, 1))
sketch9.addConstraint(Sketcher.Constraint("Symmetric", 30, 2, 72, 2, -1, 1))
sketch9.addConstraint(Sketcher.Constraint("Symmetric", 31, 2, 73, 2, -1, 1))
sketch9.addConstraint(Sketcher.Constraint("Symmetric", 32, 2, 74, 2, -1, 1))
sketch9.addConstraint(Sketcher.Constraint("Symmetric", 33, 2, 75, 2, -1, 1))
sketch9.addConstraint(Sketcher.Constraint("Symmetric", 34, 2, 76, 2, -1, 1))
sketch9.addConstraint(Sketcher.Constraint("Symmetric", 35, 2, 77, 2, -1, 1))
sketch9.addConstraint(Sketcher.Constraint("Symmetric", 36, 2, 78, 2, -1, 1))
sketch9.addConstraint(Sketcher.Constraint("Symmetric", 37, 2, 79, 2, -1, 1))
sketch9.addConstraint(Sketcher.Constraint("Symmetric", 38, 2, 80, 2, -1, 1))
sketch9.addConstraint(Sketcher.Constraint("Symmetric", 39, 2, 81, 2, -1, 1))
sketch9.addConstraint(Sketcher.Constraint("Symmetric", 40, 2, 82, 2, -1, 1))
sketch9.addConstraint(Sketcher.Constraint("Symmetric", 41, 2, 83, 2, -1, 1))
sketch9.addConstraint(Sketcher.Constraint("Perpendicular", 0, 21))
sketch9.addConstraint(Sketcher.Constraint("Perpendicular", 2, 23))
sketch9.addConstraint(Sketcher.Constraint("Perpendicular", 3, 24))
sketch9.addConstraint(Sketcher.Constraint("Perpendicular", 4, 25))
sketch9.addConstraint(Sketcher.Constraint("Perpendicular", 5, 26))
sketch9.addConstraint(Sketcher.Constraint("Perpendicular", 6, 27))
sketch9.addConstraint(Sketcher.Constraint("Perpendicular", 7, 28))
sketch9.addConstraint(Sketcher.Constraint("Perpendicular", 8, 29))
sketch9.addConstraint(Sketcher.Constraint("Perpendicular", 9, 30))
sketch9.addConstraint(Sketcher.Constraint("Perpendicular", 10, 31))
sketch9.addConstraint(Sketcher.Constraint("Perpendicular", 11, 32))
sketch9.addConstraint(Sketcher.Constraint("Perpendicular", 12, 33))
sketch9.addConstraint(Sketcher.Constraint("Perpendicular", 13, 34))
sketch9.addConstraint(Sketcher.Constraint("Perpendicular", 14, 35))
sketch9.addConstraint(Sketcher.Constraint("Perpendicular", 15, 36))
sketch9.addConstraint(Sketcher.Constraint("Perpendicular", 16, 37))
sketch9.addConstraint(Sketcher.Constraint("Perpendicular", 17, 38))
sketch9.addConstraint(Sketcher.Constraint("Perpendicular", 18, 39))
sketch9.addConstraint(Sketcher.Constraint("Perpendicular", 19, 40))
sketch9.addConstraint(Sketcher.Constraint("Perpendicular", 20, 41))
sketch9.addConstraint(Sketcher.Constraint("Perpendicular", 23, 44))
sketch9.addConstraint(Sketcher.Constraint("Perpendicular", 44, 65))
sketch9.addConstraint(Sketcher.Constraint("Equal", 43, 22))
sketch9.addConstraint(Sketcher.Constraint("Equal", 0, 2))
sketch9.addConstraint(Sketcher.Constraint("Equal", 2, 3))
sketch9.addConstraint(Sketcher.Constraint("Equal", 3, 4))
sketch9.addConstraint(Sketcher.Constraint("Equal", 4, 5))
sketch9.addConstraint(Sketcher.Constraint("Equal", 5, 6))
sketch9.addConstraint(Sketcher.Constraint("Equal", 6, 7))
sketch9.addConstraint(Sketcher.Constraint("Equal", 7, 8))
sketch9.addConstraint(Sketcher.Constraint("Equal", 8, 9))
sketch9.addConstraint(Sketcher.Constraint("Equal", 9, 10))
sketch9.addConstraint(Sketcher.Constraint("Equal", 10, 11))
sketch9.addConstraint(Sketcher.Constraint("Equal", 11, 12))
sketch9.addConstraint(Sketcher.Constraint("Equal", 12, 13))
sketch9.addConstraint(Sketcher.Constraint("Equal", 13, 14))
sketch9.addConstraint(Sketcher.Constraint("Equal", 14, 15))
sketch9.addConstraint(Sketcher.Constraint("Equal", 15, 16))
sketch9.addConstraint(Sketcher.Constraint("Equal", 16, 17))
sketch9.addConstraint(Sketcher.Constraint("Equal", 17, 18))
sketch9.addConstraint(Sketcher.Constraint("Equal", 18, 19))
sketch9.addConstraint(Sketcher.Constraint("Equal", 19, 20))
sketch9.addConstraint(Sketcher.Constraint("Equal", 23, 24))
sketch9.addConstraint(Sketcher.Constraint("Equal", 26, 27))
sketch9.addConstraint(Sketcher.Constraint("Equal", 29, 30))
sketch9.addConstraint(Sketcher.Constraint("Equal", 32, 33))
sketch9.addConstraint(Sketcher.Constraint("Equal", 35, 36))
sketch9.addConstraint(Sketcher.Constraint("Equal", 38, 39))
sketch9.addConstraint(Sketcher.Constraint("Angle", 0, Q("-60 deg")))
sketch9.addConstraint(Sketcher.Constraint("DistanceY", 14, 2, -1, 1, 1.622001))
sketch9.addConstraint(Sketcher.Constraint("DistanceX", -1, 1, 35, 2, 1.622001))
sketch9.addConstraint(Sketcher.Constraint("DistanceX", -1, 1, 9, 2, 2.190302))
sketch9.addConstraint(Sketcher.Constraint("DistanceX", -1, 1, 18, 2, 3.1109))
sketch9.addConstraint(Sketcher.Constraint("DistanceY", -1, 1, 30, 2, 2.190302))
sketch9.addConstraint(Sketcher.Constraint("DistanceY", -1, 1, 39, 2, 3.1109))
sketch9.addConstraint(Sketcher.Constraint("DistanceX", 1, 2, 1, 1, 0.518776))
sketch9.addConstraint(Sketcher.Constraint("DistanceX", 1, 2, -1, 1, 0.204782))
sketch9.addConstraint(Sketcher.Constraint("DistanceY", 2, 2, -1, 1, 2.669962))
sketch9.addConstraint(Sketcher.Constraint("DistanceY", 3, 2, -1, 1, 2.971159))
sketch9.addConstraint(Sketcher.Constraint("DistanceX", -1, 1, 5, 2, 0.64736))
sketch9.addConstraint(Sketcher.Constraint("DistanceY", 5, 2, -1, 1, 2.590869))
sketch9.addConstraint(Sketcher.Constraint("DistanceX", -1, 1, 8, 2, 1.207652))
sketch9.addConstraint(Sketcher.Constraint("DistanceY", 8, 2, -1, 1, 2.38186))
sketch9.addConstraint(Sketcher.Constraint("DistanceX", -1, 1, 12, 2, 2.634488))
sketch9.addConstraint(Sketcher.Constraint("DistanceY", 12, 2, -1, 1, 1.699321))
sketch9.addConstraint(Sketcher.Constraint("DistanceX", -1, 1, 15, 2, 2.946571))
sketch9.addConstraint(Sketcher.Constraint("DistanceX", -1, 1, 19, 2, 2.995461))
sketch9.addConstraint(Sketcher.Constraint("DistanceY", 22, 2, -1, 1, 0.204782))
sketch9.addConstraint(Sketcher.Constraint("DistanceX", -1, 1, 23, 2, 2.669962))
sketch9.addConstraint(Sketcher.Constraint("DistanceX", -1, 1, 24, 2, 2.971159))
sketch9.addConstraint(Sketcher.Constraint("DistanceY", -1, 1, 26, 2, 0.64736))
sketch9.addConstraint(Sketcher.Constraint("DistanceX", -1, 1, 29, 2, 2.38186))
sketch9.addConstraint(Sketcher.Constraint("DistanceY", -1, 1, 29, 2, 1.207652))
sketch9.addConstraint(Sketcher.Constraint("DistanceY", -1, 1, 33, 2, 2.634488))
sketch9.addConstraint(Sketcher.Constraint("DistanceY", -1, 1, 36, 2, 2.946571))
sketch9.addConstraint(Sketcher.Constraint("DistanceX", -1, 1, 6, 2, 1.636284))
sketch9.addConstraint(Sketcher.Constraint("DistanceY", 9, 2, -1, 1, 2.242944))
sketch9.addConstraint(Sketcher.Constraint("DistanceX", -1, 1, 10, 2, 1.784706))
sketch9.addConstraint(Sketcher.Constraint("DistanceY", 15, 2, -1, 1, 1.070486))
sketch9.addConstraint(Sketcher.Constraint("DistanceX", -1, 1, 16, 2, 2.721482))
sketch9.addConstraint(Sketcher.Constraint("DistanceY", 18, 2, -1, 1, 0.387973))
sketch9.addConstraint(Sketcher.Constraint("DistanceX", -1, 1, 30, 2, 2.242944))
sketch9.addConstraint(Sketcher.Constraint("DistanceX", -1, 1, 36, 2, 1.070486))
sketch9.addConstraint(Sketcher.Constraint("DistanceX", -1, 1, 39, 2, 0.387973))
pocket3 = body.newObject("PartDesign::Pocket", "Pocket002")
pocket3.Profile = sketch9
pocket3.Length = 6.6
pocket3.Reversed = True

# Sketch on XZ plane
sketch10 = body.newObject("Sketcher::SketchObject", "Sketch009")
sketch10.AttachmentSupport = (doc.getObject("XZ_Plane"), [""])
sketch10.MapMode = "FlatFace"
sketch10.AttachmentOffset = App.Placement(V(0, 0, -8.15), App.Rotation())
sketch10.addGeometry(Part.LineSegment(V(-7.5, -1.2, 0), V(-8.6, -1.2, 0)), False)
sketch10.addGeometry(Part.ArcOfCircle(Part.Circle(V(0, 0, 0), V(0, 0, 1), 8.7), math.radians(171.69), math.radians(188.31)), False)
sketch10.addGeometry(Part.LineSegment(V(-8.6, 1.2, 0), V(-7.5, 1.2, 0)), False)
sketch10.addGeometry(Part.LineSegment(V(-7.5, 1.2, 0), V(-7.5, -1.2, 0)), False)
sketch10.addConstraint(Sketcher.Constraint("Coincident", 0, 2, 1, 2))
sketch10.addConstraint(Sketcher.Constraint("Coincident", 1, 1, 2, 1))
sketch10.addConstraint(Sketcher.Constraint("Coincident", 2, 2, 3, 1))
sketch10.addConstraint(Sketcher.Constraint("Coincident", 3, 2, 0, 1))
sketch10.addConstraint(Sketcher.Constraint("Horizontal", 0))
sketch10.addConstraint(Sketcher.Constraint("Horizontal", 2))
sketch10.addConstraint(Sketcher.Constraint("Vertical", 3))
sketch10.addConstraint(Sketcher.Constraint("Coincident", 1, 3, -1, 1))
sketch10.addConstraint(Sketcher.Constraint("Vertical", 0, 2, 1, 1))
sketch10.addConstraint(Sketcher.Constraint("Radius", 1, 8.65))
sketch10.addConstraint(Sketcher.Constraint("DistanceY", 3, 2, 3, 1, 2.5))
sketch10.addConstraint(Sketcher.Constraint("DistanceX", 2, 2, -1, 1, 7.45))
pad7 = body.newObject("PartDesign::Pad", "Pad006")
pad7.Profile = sketch10
pad7.Length = 2.2
pad7.Reversed = True
body2 = doc.addObject("PartDesign::Body", "Body001")

# Sketch on XZ plane
sketch11 = body2.newObject("Sketcher::SketchObject", "Sketch010")
sketch11.AttachmentSupport = (doc.getObject("XZ_Plane001"), [""])
sketch11.MapMode = "FlatFace"
sketch11.AttachmentOffset = App.Placement(V(0, 0, -7.55), App.Rotation())
sketch11.addGeometry(Part.LineSegment(V(-5.5, 12.3, 0), V(-5.6, 16.5, 0)), False)
sketch11.addGeometry(Part.LineSegment(V(-5.6, 16.5, 0), V(-4.6, 16.5, 0)), False)
sketch11.addGeometry(Part.LineSegment(V(-4.6, 16.5, 0), V(-4.6, 12.3, 0)), False)
sketch11.addGeometry(Part.LineSegment(V(-4.6, 12.3, 0), V(-3.3, 12.3, 0)), False)
sketch11.addGeometry(Part.LineSegment(V(-3.3, 12.3, 0), V(-3.3, 8.1, 0)), False)
sketch11.addGeometry(Part.ArcOfCircle(Part.Circle(V(-5, 8.1, 0), V(0, 0, 1), 1.8), math.radians(180), math.radians(360)), False)
sketch11.addGeometry(Part.LineSegment(V(-6.8, 8.1, 0), V(-6.8, 12.3, 0)), False)
sketch11.addGeometry(Part.LineSegment(V(-6.8, 12.3, 0), V(-5.5, 12.3, 0)), False)
sketch11.addGeometry(Part.Circle(V(-5, 8.1, 0), V(0, 0, 1), 0.6), False)
sketch11.addConstraint(Sketcher.Constraint("Coincident", 0, 2, 1, 1))
sketch11.addConstraint(Sketcher.Constraint("Coincident", 1, 2, 2, 1))
sketch11.addConstraint(Sketcher.Constraint("Coincident", 2, 2, 3, 1))
sketch11.addConstraint(Sketcher.Constraint("Coincident", 3, 2, 4, 1))
sketch11.addConstraint(Sketcher.Constraint("Tangent", 4, 2, 5, 2))
sketch11.addConstraint(Sketcher.Constraint("Tangent", 5, 1, 6, 1))
sketch11.addConstraint(Sketcher.Constraint("Coincident", 6, 2, 7, 1))
sketch11.addConstraint(Sketcher.Constraint("Coincident", 7, 2, 0, 1))
sketch11.addConstraint(Sketcher.Constraint("Vertical", 0))
sketch11.addConstraint(Sketcher.Constraint("Horizontal", 1))
sketch11.addConstraint(Sketcher.Constraint("Vertical", 2))
sketch11.addConstraint(Sketcher.Constraint("Horizontal", 3))
sketch11.addConstraint(Sketcher.Constraint("Vertical", 4))
sketch11.addConstraint(Sketcher.Constraint("Vertical", 6))
sketch11.addConstraint(Sketcher.Constraint("Horizontal", 7))
sketch11.addConstraint(Sketcher.Constraint("Coincident", 8, 3, 5, 3))
sketch11.addConstraint(Sketcher.Constraint("Horizontal", 3, 2, 6, 2))
sketch11.addConstraint(Sketcher.Constraint("Equal", 3, 7))
sketch11.addConstraint(Sketcher.Constraint("Equal", 2, 4))
sketch11.addConstraint(Sketcher.Constraint("DistanceX", 1, 1, 1, 2, 1.0))
sketch11.addConstraint(Sketcher.Constraint("Radius", 5, 1.75))
sketch11.addConstraint(Sketcher.Constraint("DistanceY", 0, 1, 0, 2, 4.2))
sketch11.addConstraint(Sketcher.Constraint("DistanceX", 3, 2, -1, 1, 3.3))
sketch11.addConstraint(Sketcher.Constraint("DistanceY", -1, 1, 5, 3, 8.07))
sketch11.addConstraint(Sketcher.Constraint("Diameter", 8, 1.130995))
pad8 = body2.newObject("PartDesign::Pad", "Pad007")
pad8.Profile = sketch11
pad8.Length = 0.6
pad8.Reversed = True
body3 = doc.addObject("PartDesign::Body", "Body002")

# Sketch on XZ plane
sketch12 = body3.newObject("Sketcher::SketchObject", "Sketch011")
sketch12.AttachmentSupport = (doc.getObject("XZ_Plane002"), [""])
sketch12.MapMode = "FlatFace"
sketch12.AttachmentOffset = App.Placement(V(0, 0, -7.55), App.Rotation())
sketch12.addGeometry(Part.LineSegment(V(-0.5, 12.3, 0), V(-0.5, 16.5, 0)), False)
sketch12.addGeometry(Part.LineSegment(V(-0.5, 16.5, 0), V(0.5, 16.5, 0)), False)
sketch12.addGeometry(Part.LineSegment(V(0.5, 16.5, 0), V(0.5, 12.3, 0)), False)
sketch12.addGeometry(Part.LineSegment(V(0.5, 12.3, 0), V(1.8, 12.3, 0)), False)
sketch12.addGeometry(Part.LineSegment(V(1.8, 12.3, 0), V(1.8, 8.1, 0)), False)
sketch12.addGeometry(Part.ArcOfCircle(Part.Circle(V(0, 8.1, 0), V(0, 0, 1), 1.8), math.radians(180), math.radians(360)), False)
sketch12.addGeometry(Part.LineSegment(V(-1.8, 8.1, 0), V(-1.8, 12.3, 0)), False)
sketch12.addGeometry(Part.LineSegment(V(-1.8, 12.3, 0), V(-0.5, 12.3, 0)), False)
sketch12.addGeometry(Part.Circle(V(0, 8.1, 0), V(0, 0, 1), 0.6), False)
sketch12.addConstraint(Sketcher.Constraint("Coincident", 0, 2, 1, 1))
sketch12.addConstraint(Sketcher.Constraint("Coincident", 1, 2, 2, 1))
sketch12.addConstraint(Sketcher.Constraint("Coincident", 2, 2, 3, 1))
sketch12.addConstraint(Sketcher.Constraint("Coincident", 3, 2, 4, 1))
sketch12.addConstraint(Sketcher.Constraint("Tangent", 4, 2, 5, 2))
sketch12.addConstraint(Sketcher.Constraint("Tangent", 5, 1, 6, 1))
sketch12.addConstraint(Sketcher.Constraint("Coincident", 6, 2, 7, 1))
sketch12.addConstraint(Sketcher.Constraint("Coincident", 7, 2, 0, 1))
sketch12.addConstraint(Sketcher.Constraint("Vertical", 0))
sketch12.addConstraint(Sketcher.Constraint("Horizontal", 1))
sketch12.addConstraint(Sketcher.Constraint("Vertical", 2))
sketch12.addConstraint(Sketcher.Constraint("Horizontal", 3))
sketch12.addConstraint(Sketcher.Constraint("Vertical", 4))
sketch12.addConstraint(Sketcher.Constraint("Vertical", 6))
sketch12.addConstraint(Sketcher.Constraint("Horizontal", 7))
sketch12.addConstraint(Sketcher.Constraint("Coincident", 8, 3, 5, 3))
sketch12.addConstraint(Sketcher.Constraint("Symmetric", 3, 2, 6, 2, -2))
sketch12.addConstraint(Sketcher.Constraint("Equal", 3, 7))
sketch12.addConstraint(Sketcher.Constraint("Equal", 2, 4))
sketch12.addConstraint(Sketcher.Constraint("DistanceX", 1, 1, 1, 2, 1.0))
sketch12.addConstraint(Sketcher.Constraint("Radius", 5, 1.75))
sketch12.addConstraint(Sketcher.Constraint("DistanceY", 0, 1, 0, 2, 4.2))
sketch12.addConstraint(Sketcher.Constraint("DistanceY", -1, 1, 5, 3, 8.07))
sketch12.addConstraint(Sketcher.Constraint("Diameter", 8, 1.130995))
pad9 = body3.newObject("PartDesign::Pad", "Pad008")
pad9.Profile = sketch12
pad9.Length = 0.6
pad9.Reversed = True
body4 = doc.addObject("PartDesign::Body", "Body003")

# Sketch on XZ plane
sketch13 = body4.newObject("Sketcher::SketchObject", "Sketch012")
sketch13.AttachmentSupport = (doc.getObject("XZ_Plane003"), [""])
sketch13.MapMode = "FlatFace"
sketch13.AttachmentOffset = App.Placement(V(0, 0, -7.55), App.Rotation())
sketch13.addGeometry(Part.LineSegment(V(4.6, 12.3, 0), V(4.5, 16.5, 0)), False)
sketch13.addGeometry(Part.LineSegment(V(4.5, 16.5, 0), V(5.5, 16.5, 0)), False)
sketch13.addGeometry(Part.LineSegment(V(5.5, 16.5, 0), V(5.5, 12.3, 0)), False)
sketch13.addGeometry(Part.LineSegment(V(5.5, 12.3, 0), V(6.8, 12.3, 0)), False)
sketch13.addGeometry(Part.LineSegment(V(6.8, 12.3, 0), V(6.8, 8.1, 0)), False)
sketch13.addGeometry(Part.ArcOfCircle(Part.Circle(V(5, 8.1, 0), V(0, 0, 1), 1.8), math.radians(180), math.radians(360)), False)
sketch13.addGeometry(Part.LineSegment(V(3.3, 8.1, 0), V(3.3, 12.3, 0)), False)
sketch13.addGeometry(Part.LineSegment(V(3.3, 12.3, 0), V(4.6, 12.3, 0)), False)
sketch13.addGeometry(Part.Circle(V(5, 8.1, 0), V(0, 0, 1), 0.6), False)
sketch13.addConstraint(Sketcher.Constraint("Coincident", 0, 2, 1, 1))
sketch13.addConstraint(Sketcher.Constraint("Coincident", 1, 2, 2, 1))
sketch13.addConstraint(Sketcher.Constraint("Coincident", 2, 2, 3, 1))
sketch13.addConstraint(Sketcher.Constraint("Coincident", 3, 2, 4, 1))
sketch13.addConstraint(Sketcher.Constraint("Tangent", 4, 2, 5, 2))
sketch13.addConstraint(Sketcher.Constraint("Tangent", 5, 1, 6, 1))
sketch13.addConstraint(Sketcher.Constraint("Coincident", 6, 2, 7, 1))
sketch13.addConstraint(Sketcher.Constraint("Coincident", 7, 2, 0, 1))
sketch13.addConstraint(Sketcher.Constraint("Vertical", 0))
sketch13.addConstraint(Sketcher.Constraint("Horizontal", 1))
sketch13.addConstraint(Sketcher.Constraint("Vertical", 2))
sketch13.addConstraint(Sketcher.Constraint("Horizontal", 3))
sketch13.addConstraint(Sketcher.Constraint("Vertical", 4))
sketch13.addConstraint(Sketcher.Constraint("Vertical", 6))
sketch13.addConstraint(Sketcher.Constraint("Horizontal", 7))
sketch13.addConstraint(Sketcher.Constraint("Coincident", 8, 3, 5, 3))
sketch13.addConstraint(Sketcher.Constraint("Horizontal", 3, 2, 6, 2))
sketch13.addConstraint(Sketcher.Constraint("Equal", 3, 7))
sketch13.addConstraint(Sketcher.Constraint("Equal", 2, 4))
sketch13.addConstraint(Sketcher.Constraint("DistanceX", 1, 1, 1, 2, 1.0))
sketch13.addConstraint(Sketcher.Constraint("Radius", 5, 1.75))
sketch13.addConstraint(Sketcher.Constraint("DistanceY", 0, 1, 0, 2, 4.2))
sketch13.addConstraint(Sketcher.Constraint("DistanceX", -1, 1, 3, 2, 6.8))
sketch13.addConstraint(Sketcher.Constraint("DistanceY", -1, 1, 5, 3, 8.07))
sketch13.addConstraint(Sketcher.Constraint("Diameter", 8, 1.130995))
pad10 = body4.newObject("PartDesign::Pad", "Pad009")
pad10.Profile = sketch13
pad10.Length = 0.6
pad10.Reversed = True

doc.recompute()
